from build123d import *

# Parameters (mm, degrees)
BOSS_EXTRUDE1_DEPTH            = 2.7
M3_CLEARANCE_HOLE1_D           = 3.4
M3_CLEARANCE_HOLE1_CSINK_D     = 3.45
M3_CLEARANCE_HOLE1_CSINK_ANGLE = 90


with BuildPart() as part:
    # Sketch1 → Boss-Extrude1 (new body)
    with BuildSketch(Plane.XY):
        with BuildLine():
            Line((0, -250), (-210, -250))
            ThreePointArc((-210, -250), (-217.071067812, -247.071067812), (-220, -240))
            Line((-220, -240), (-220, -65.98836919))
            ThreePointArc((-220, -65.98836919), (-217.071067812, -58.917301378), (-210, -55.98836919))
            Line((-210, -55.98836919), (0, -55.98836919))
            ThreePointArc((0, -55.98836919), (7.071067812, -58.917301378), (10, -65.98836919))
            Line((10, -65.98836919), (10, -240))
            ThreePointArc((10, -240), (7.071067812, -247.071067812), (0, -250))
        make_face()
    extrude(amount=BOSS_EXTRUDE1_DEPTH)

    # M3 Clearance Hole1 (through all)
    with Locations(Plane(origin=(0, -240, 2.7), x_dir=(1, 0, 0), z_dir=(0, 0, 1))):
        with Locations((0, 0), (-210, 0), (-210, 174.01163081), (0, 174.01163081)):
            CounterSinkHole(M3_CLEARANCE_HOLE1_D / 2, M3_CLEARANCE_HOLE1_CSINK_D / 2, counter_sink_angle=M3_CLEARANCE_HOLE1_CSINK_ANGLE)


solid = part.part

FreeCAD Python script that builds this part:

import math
import FreeCAD as App
import Part
import Sketcher

doc = App.newDocument("Part")
params = doc.addObject("Spreadsheet::Sheet", "Params")
for row, (alias, value) in enumerate([
    ("sketch1_radius", "10 mm"),
    ("sketch1_width", "210 mm"),
    ("pad1_length", "2.7 mm"),
    ("sketch2_diameter", "3.4 mm"),
    ("hole_diameter", "3.4 mm"),
    ("hole_csink_diameter", "3.45 mm"),
], start=1):
    params.set(f"A{row}", alias)
    params.set(f"B{row}", "=" + value)
    params.setAlias(f"B{row}", alias)

body = doc.addObject("PartDesign::Body", "Body")

# Sketch on XY plane
sketch1 = doc.addObject("Sketcher::SketchObject", "Sketch")
body.addObject(sketch1)
sketch1.AttachmentSupport = (doc.XY_Plane, [""])
sketch1.MapMode = "FlatFace"
sketch1.addGeometry([
    Part.LineSegment(App.Vector(-210, -250, 0), App.Vector(0, -250, 0)),  # 0
    Part.ArcOfCircle(Part.Circle(App.Vector(0, -240, 0), App.Vector(0, 0, 1), 10), math.radians(-90), math.radians(0)),  # 1
    Part.LineSegment(App.Vector(10, -240, 0), App.Vector(10, -66, 0)),  # 2
    Part.ArcOfCircle(Part.Circle(App.Vector(0, -66, 0), App.Vector(0, 0, 1), 10), math.radians(0), math.radians(90)),  # 3
    Part.LineSegment(App.Vector(0, -56, 0), App.Vector(-210, -56, 0)),  # 4
    Part.ArcOfCircle(Part.Circle(App.Vector(-210, -66, 0), App.Vector(0, 0, 1), 10), math.radians(90), math.radians(180)),  # 5
    Part.LineSegment(App.Vector(-220, -66, 0), App.Vector(-220, -240, 0)),  # 6
    Part.ArcOfCircle(Part.Circle(App.Vector(-210, -240, 0), App.Vector(0, 0, 1), 10), math.radians(180), math.radians(270)),  # 7
], False)
sketch1.addConstraint([
    Sketcher.Constraint("Tangent", 0, 2, 1, 1),
    Sketcher.Constraint("Tangent", 1, 2, 2, 1),
    Sketcher.Constraint("Tangent", 2, 2, 3, 1),
    Sketcher.Constraint("Tangent", 3, 2, 4, 1),
    Sketcher.Constraint("Tangent", 4, 2, 5, 1),
    Sketcher.Constraint("Tangent", 5, 2, 6, 1),
    Sketcher.Constraint("Tangent", 6, 2, 7, 1),
    Sketcher.Constraint("Tangent", 7, 2, 0, 1),
    Sketcher.Constraint("Horizontal", 0),
    Sketcher.Constraint("Vertical", 2),
    Sketcher.Constraint("Horizontal", 4),
    Sketcher.Constraint("Vertical", 6),
    Sketcher.Constraint("Equal", 1, 3),
    Sketcher.Constraint("Equal", 3, 5),
    Sketcher.Constraint("Equal", 5, 7),
    Sketcher.Constraint("PointOnObject", 1, 3, -2),
    Sketcher.Constraint("Radius", 1, 10.0),
    Sketcher.Constraint("DistanceX", 0, 1, 0, 2, 210.0),
    Sketcher.Constraint("DistanceY", 1, 3, -1, 1, 240.0),
    Sketcher.Constraint("DistanceY", 2, 1, 2, 2, 174.011631),
])
sketch1.setExpression("Constraints[16]", "Params.sketch1_radius")
sketch1.setExpression("Constraints[17]", "Params.sketch1_width")
pad1 = doc.addObject("PartDesign::Pad", "Pad")
body.addObject(pad1)
pad1.Profile = sketch1
pad1.setExpression("Length", "Params.pad1_length")

# Sketch on XY plane
sketch2 = doc.addObject("Sketcher::SketchObject", "Sketch001")
body.addObject(sketch2)
sketch2.AttachmentSupport = (doc.XY_Plane, [""])
sketch2.MapMode = "FlatFace"
sketch2.AttachmentOffset = App.Placement(App.Vector(0, 0, 2.7), App.Rotation())
sketch2.addGeometry([
    Part.Circle(App.Vector(0, -240, 0), App.Vector(0, 0, 1), 1.7),
    Part.Circle(App.Vector(-210, -240, 0), App.Vector(0, 0, 1), 1.7),
    Part.Circle(App.Vector(-210, -66, 0), App.Vector(0, 0, 1), 1.7),
    Part.Circle(App.Vector(0, -66, 0), App.Vector(0, 0, 1), 1.7),
], False)
sketch2.addConstraint([
    Sketcher.Constraint("Equal", 0, 1),
    Sketcher.Constraint("Equal", 1, 2),
    Sketcher.Constraint("Equal", 2, 3),
    Sketcher.Constraint("PointOnObject", 0, 3, -2),
    Sketcher.Constraint("PointOnObject", 3, 3, -2),
    Sketcher.Constraint("Horizontal", 0, 3, 1, 3),
    Sketcher.Constraint("Horizontal", 2, 3, 3, 3),
    Sketcher.Constraint("Vertical", 1, 3, 2, 3),
    Sketcher.Constraint("Diameter", 0, 3.4),
    Sketcher.Constraint("DistanceY", 0, 3, -1, 1, 240.0),
    Sketcher.Constraint("DistanceX", 1, 3, -1, 1, 210.0),
    Sketcher.Constraint("DistanceY", 2, 3, -1, 1, 65.988369),
])
sketch2.setExpression("Constraints[8]", "Params.sketch2_diameter")
doc.recompute()
hole = doc.addObject("PartDesign::Hole", "Hole")
body.addObject(hole)
hole.Profile = sketch2
hole.ThreadType = "None"
hole.setExpression("Diameter", "Params.hole_diameter")
hole.DepthType = "ThroughAll"
hole.HoleCutType = "Countersink"
hole.setExpression("HoleCutDiameter", "Params.hole_csink_diameter")
hole.HoleCutCountersinkAngle = 90

doc.recompute()
